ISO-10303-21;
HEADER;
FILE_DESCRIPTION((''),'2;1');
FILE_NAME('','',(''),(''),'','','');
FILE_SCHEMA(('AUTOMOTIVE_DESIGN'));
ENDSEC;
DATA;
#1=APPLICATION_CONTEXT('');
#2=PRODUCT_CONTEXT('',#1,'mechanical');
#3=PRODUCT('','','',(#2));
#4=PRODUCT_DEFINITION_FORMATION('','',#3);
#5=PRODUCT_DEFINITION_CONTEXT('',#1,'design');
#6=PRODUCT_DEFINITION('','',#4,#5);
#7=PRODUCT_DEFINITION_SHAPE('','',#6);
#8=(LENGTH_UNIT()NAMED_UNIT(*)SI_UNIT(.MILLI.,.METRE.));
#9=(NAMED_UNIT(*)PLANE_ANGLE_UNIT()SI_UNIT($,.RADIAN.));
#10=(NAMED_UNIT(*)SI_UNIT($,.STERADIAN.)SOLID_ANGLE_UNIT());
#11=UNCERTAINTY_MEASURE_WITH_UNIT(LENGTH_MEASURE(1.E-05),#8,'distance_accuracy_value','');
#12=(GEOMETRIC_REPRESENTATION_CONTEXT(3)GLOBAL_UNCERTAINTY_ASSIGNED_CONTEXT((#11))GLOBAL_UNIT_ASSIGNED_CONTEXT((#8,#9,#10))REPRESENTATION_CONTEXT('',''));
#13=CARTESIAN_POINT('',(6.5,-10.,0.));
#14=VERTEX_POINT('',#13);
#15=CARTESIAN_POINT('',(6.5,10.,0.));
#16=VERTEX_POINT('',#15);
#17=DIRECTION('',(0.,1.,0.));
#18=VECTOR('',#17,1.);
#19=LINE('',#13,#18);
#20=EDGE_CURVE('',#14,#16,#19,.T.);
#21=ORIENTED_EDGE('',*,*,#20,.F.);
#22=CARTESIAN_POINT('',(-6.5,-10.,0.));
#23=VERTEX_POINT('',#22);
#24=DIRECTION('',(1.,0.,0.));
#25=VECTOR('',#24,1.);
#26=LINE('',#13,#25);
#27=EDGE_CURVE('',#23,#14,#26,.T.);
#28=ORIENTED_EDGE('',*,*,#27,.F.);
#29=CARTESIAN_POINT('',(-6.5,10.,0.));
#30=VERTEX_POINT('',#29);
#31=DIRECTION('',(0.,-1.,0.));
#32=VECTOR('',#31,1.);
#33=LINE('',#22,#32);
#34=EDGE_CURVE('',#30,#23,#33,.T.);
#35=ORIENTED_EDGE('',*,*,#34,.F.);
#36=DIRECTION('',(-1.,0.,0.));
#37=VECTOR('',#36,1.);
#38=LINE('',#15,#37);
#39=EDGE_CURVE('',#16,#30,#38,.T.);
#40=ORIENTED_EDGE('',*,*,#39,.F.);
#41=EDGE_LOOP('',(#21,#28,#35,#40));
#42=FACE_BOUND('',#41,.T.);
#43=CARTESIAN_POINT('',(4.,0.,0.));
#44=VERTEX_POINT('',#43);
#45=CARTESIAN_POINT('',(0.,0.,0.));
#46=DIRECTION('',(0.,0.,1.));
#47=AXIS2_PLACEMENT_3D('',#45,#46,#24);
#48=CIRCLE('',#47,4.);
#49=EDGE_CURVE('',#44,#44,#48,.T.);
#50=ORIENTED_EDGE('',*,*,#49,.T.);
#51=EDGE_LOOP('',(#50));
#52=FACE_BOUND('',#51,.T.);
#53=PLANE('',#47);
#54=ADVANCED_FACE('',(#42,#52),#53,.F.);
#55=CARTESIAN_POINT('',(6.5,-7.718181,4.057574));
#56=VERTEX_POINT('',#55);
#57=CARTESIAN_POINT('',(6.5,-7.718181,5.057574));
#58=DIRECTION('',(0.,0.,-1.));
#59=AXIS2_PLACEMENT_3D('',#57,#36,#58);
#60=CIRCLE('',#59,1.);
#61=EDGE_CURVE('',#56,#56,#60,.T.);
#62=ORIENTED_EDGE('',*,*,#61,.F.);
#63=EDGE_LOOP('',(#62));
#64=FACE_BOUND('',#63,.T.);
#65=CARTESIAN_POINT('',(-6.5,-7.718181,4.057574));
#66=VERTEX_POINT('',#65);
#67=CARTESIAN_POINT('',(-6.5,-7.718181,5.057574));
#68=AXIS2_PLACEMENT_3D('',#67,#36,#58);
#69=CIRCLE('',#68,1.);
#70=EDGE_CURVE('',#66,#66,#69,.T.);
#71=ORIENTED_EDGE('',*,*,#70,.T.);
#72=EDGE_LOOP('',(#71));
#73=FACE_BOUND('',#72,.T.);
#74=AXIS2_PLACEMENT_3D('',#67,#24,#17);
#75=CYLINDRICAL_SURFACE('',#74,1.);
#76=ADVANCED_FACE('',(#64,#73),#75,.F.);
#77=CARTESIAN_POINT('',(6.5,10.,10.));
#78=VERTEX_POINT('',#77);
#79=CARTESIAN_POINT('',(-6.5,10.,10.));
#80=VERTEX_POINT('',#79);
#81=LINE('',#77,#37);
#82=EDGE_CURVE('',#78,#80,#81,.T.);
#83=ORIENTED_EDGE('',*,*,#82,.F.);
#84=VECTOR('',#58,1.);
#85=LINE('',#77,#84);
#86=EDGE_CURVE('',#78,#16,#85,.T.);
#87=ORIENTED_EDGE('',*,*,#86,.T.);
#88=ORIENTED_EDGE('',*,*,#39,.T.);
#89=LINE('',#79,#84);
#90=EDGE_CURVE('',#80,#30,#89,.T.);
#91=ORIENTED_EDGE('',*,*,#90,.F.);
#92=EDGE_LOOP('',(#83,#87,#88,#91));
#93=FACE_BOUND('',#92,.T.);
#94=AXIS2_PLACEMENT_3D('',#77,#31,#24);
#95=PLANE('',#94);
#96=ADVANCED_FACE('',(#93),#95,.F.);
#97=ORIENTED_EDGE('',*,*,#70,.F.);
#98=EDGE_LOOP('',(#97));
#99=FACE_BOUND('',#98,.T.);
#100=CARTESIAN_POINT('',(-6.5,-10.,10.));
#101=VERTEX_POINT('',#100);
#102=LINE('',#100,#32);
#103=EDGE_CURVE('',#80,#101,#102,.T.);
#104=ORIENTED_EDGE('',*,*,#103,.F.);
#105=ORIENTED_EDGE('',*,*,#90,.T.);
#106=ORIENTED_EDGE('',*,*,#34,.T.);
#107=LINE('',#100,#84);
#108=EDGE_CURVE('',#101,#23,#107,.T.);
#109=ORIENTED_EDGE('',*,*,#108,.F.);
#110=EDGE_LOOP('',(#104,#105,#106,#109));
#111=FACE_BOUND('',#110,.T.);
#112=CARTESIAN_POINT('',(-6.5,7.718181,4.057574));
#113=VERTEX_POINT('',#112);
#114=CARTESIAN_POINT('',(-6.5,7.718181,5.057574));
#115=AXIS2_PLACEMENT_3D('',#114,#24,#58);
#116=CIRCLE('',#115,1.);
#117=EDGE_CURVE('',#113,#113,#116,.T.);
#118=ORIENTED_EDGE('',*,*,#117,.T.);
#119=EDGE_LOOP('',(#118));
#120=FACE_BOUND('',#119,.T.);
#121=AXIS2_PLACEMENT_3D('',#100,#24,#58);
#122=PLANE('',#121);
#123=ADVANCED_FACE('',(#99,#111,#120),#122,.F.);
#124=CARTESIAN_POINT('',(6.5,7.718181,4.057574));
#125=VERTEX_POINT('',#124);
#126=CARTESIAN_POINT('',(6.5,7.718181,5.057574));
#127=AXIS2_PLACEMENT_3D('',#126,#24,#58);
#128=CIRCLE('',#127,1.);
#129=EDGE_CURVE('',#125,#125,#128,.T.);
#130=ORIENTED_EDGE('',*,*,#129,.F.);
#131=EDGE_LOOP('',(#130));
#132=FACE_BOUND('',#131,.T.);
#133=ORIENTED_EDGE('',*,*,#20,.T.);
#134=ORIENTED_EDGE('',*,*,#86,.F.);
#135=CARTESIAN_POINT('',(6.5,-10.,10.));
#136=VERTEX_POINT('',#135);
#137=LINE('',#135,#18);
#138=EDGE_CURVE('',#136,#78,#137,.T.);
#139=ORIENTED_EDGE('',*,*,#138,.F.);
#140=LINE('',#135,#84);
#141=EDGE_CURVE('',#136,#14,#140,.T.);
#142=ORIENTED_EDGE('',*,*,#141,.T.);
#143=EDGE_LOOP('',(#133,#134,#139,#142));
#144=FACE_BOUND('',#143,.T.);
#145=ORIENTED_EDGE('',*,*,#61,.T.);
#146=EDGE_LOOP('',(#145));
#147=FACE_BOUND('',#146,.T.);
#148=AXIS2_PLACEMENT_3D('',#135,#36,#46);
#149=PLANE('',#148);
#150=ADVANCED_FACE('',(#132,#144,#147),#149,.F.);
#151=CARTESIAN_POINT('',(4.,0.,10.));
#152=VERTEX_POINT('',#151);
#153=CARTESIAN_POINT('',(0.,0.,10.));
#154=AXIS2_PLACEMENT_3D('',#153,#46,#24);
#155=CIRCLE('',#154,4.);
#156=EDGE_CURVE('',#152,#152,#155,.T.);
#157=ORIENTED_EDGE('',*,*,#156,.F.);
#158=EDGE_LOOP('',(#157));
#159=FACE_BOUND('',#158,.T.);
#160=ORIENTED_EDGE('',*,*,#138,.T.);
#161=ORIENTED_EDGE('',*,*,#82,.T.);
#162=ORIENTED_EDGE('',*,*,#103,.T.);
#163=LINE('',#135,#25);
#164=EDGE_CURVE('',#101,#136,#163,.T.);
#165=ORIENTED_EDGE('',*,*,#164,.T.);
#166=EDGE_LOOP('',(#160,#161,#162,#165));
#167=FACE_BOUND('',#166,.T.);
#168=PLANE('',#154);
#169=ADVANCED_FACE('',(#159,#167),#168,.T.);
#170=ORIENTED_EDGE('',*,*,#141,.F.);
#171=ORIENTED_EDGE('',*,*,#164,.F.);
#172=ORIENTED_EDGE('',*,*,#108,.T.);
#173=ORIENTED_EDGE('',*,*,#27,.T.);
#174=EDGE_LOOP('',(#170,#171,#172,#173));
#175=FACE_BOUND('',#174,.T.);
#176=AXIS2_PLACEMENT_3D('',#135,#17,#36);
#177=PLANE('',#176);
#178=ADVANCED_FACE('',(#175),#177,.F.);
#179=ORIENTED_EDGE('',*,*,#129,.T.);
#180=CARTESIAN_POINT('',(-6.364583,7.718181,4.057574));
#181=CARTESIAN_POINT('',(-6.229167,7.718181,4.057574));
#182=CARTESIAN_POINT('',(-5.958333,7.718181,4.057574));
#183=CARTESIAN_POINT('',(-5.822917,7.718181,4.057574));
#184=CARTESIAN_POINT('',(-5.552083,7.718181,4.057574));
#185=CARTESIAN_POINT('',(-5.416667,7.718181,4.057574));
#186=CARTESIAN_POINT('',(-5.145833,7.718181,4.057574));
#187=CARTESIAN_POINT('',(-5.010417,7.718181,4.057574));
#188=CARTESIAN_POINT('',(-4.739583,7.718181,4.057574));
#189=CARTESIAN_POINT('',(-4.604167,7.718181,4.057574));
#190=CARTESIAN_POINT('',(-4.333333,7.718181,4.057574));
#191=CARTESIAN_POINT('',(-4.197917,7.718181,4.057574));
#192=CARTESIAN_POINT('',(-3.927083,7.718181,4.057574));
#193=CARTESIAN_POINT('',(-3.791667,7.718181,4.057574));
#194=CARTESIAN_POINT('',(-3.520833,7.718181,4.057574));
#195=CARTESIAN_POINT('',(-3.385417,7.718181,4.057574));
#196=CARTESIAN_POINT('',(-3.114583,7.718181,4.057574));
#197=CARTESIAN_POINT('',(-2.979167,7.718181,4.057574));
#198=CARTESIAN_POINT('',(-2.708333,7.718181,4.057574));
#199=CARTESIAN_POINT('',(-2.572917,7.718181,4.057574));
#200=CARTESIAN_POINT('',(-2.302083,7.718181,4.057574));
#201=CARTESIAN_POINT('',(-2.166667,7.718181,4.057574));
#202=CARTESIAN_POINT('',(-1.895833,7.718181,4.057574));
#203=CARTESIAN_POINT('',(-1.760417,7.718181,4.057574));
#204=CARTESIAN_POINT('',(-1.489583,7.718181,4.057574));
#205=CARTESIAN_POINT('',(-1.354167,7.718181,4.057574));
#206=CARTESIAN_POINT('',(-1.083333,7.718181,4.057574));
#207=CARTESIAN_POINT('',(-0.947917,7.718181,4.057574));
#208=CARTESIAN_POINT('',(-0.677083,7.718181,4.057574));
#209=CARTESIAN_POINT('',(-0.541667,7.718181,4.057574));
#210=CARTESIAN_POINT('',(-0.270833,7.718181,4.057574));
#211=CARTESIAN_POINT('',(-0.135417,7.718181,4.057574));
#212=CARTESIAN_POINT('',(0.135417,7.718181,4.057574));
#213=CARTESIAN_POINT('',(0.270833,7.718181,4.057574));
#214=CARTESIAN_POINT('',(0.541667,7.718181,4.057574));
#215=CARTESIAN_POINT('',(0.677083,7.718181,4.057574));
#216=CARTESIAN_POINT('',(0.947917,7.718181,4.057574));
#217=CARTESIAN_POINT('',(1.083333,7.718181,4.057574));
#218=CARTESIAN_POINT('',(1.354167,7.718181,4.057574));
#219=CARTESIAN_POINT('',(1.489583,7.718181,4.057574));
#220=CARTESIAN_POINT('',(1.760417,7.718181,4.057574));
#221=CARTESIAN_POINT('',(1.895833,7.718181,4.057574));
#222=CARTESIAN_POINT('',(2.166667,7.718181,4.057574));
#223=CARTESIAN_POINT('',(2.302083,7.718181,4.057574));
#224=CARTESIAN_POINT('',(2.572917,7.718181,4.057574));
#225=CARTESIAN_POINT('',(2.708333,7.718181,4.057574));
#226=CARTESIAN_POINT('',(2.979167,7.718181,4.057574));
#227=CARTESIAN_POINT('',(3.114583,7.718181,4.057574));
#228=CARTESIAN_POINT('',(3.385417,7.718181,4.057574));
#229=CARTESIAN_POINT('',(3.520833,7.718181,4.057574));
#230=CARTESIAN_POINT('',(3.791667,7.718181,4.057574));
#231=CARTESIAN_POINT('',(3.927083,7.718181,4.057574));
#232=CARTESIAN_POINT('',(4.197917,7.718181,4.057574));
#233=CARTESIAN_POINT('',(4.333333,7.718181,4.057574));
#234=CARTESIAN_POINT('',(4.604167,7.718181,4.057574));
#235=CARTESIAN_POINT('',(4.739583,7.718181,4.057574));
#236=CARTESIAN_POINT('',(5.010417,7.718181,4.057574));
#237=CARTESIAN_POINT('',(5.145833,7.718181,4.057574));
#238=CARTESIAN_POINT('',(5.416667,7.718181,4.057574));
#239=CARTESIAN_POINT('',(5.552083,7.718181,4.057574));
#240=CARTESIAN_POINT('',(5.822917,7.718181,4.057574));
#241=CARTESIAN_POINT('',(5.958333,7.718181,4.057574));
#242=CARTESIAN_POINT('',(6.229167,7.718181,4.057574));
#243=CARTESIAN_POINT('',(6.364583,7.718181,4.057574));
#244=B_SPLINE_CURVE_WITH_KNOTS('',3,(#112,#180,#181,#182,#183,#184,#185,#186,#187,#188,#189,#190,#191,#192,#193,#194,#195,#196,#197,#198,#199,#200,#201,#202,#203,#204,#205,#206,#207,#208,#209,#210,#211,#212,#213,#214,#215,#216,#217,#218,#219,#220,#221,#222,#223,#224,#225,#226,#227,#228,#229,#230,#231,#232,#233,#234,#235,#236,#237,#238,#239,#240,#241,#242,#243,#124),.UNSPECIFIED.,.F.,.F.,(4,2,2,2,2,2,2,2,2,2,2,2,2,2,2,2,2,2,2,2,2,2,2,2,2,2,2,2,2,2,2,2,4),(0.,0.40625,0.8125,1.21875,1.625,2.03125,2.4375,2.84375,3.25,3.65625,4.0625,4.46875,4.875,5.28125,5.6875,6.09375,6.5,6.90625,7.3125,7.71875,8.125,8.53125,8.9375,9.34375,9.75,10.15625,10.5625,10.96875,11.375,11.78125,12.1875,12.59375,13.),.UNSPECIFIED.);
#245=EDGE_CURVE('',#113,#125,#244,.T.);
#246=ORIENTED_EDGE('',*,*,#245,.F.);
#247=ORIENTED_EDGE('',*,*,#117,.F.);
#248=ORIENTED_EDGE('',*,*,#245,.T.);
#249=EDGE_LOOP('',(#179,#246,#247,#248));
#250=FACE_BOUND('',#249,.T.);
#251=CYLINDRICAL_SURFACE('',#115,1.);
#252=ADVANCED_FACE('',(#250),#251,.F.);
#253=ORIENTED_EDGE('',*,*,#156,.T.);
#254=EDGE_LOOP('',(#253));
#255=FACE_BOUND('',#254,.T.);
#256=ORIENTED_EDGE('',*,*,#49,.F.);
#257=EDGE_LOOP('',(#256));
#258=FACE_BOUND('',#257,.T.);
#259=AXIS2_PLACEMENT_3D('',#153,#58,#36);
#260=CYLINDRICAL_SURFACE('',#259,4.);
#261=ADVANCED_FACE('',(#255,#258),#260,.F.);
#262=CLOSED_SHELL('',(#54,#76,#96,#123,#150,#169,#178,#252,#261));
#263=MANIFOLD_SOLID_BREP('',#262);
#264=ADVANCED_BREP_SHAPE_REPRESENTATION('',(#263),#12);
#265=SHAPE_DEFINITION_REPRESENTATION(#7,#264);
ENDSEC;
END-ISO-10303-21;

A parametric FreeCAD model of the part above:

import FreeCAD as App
import Part
import Sketcher
from FreeCAD import Vector

doc = App.newDocument("Part")
body = doc.addObject("PartDesign::Body", "Body")

# Sketch on XY plane
sketch1 = body.newObject("Sketcher::SketchObject", "Sketch")
sketch1.AttachmentSupport = (doc.getObject("XY_Plane"), [""])
sketch1.MapMode = "FlatFace"
sketch1.addGeometry([
    Part.LineSegment(Vector(-6.5, 10, 0), Vector(-6.5, -10, 0)),  # 0
    Part.LineSegment(Vector(-6.5, -10, 0), Vector(6.5, -10, 0)),  # 1
    Part.LineSegment(Vector(6.5, -10, 0), Vector(6.5, 10, 0)),  # 2
    Part.LineSegment(Vector(6.5, 10, 0), Vector(-6.5, 10, 0)),  # 3
    Part.Circle(Vector(0, 0, 0), Vector(0, 0, 1), 4),  # 4
], False)
sketch1.addConstraint([
    Sketcher.Constraint("Coincident", 0, 2, 1, 1),
    Sketcher.Constraint("Coincident", 1, 2, 2, 1),
    Sketcher.Constraint("Coincident", 2, 2, 3, 1),
    Sketcher.Constraint("Coincident", 3, 2, 0, 1),
    Sketcher.Constraint("Vertical", 0),
    Sketcher.Constraint("Horizontal", 1),
    Sketcher.Constraint("Vertical", 2),
    Sketcher.Constraint("Horizontal", 3),
    Sketcher.Constraint("Coincident", 4, 3, -1, 1),
    Sketcher.Constraint("Symmetric", 0, 2, 2, 2, -1, 1),
    Sketcher.Constraint("Diameter", 4, 8.0),
    Sketcher.Constraint("DistanceX", 1, 1, 1, 2, 13.0),
    Sketcher.Constraint("DistanceY", 0, 2, 0, 1, 20.0),
])
pad1 = body.newObject("PartDesign::Pad", "Pad")
pad1.Profile = sketch1
pad1.Length = 10

# Sketch on YZ plane
sketch2 = body.newObject("Sketcher::SketchObject", "Sketch001")
sketch2.AttachmentSupport = (doc.getObject("YZ_Plane"), [""])
sketch2.MapMode = "FlatFace"
sketch2.AttachmentOffset = App.Placement(Vector(0, 0, 6.5), App.Rotation())
sketch2.addGeometry(Part.Circle(Vector(7.718181, 5.057574, 0), Vector(0, 0, 1), 1), False)
sketch2.addConstraint([
    Sketcher.Constraint("Diameter", 0, 2.0),
    Sketcher.Constraint("DistanceX", -1, 1, 0, 3, 7.718181),
    Sketcher.Constraint("DistanceY", -1, 1, 0, 3, 5.057574),
])
pocket1 = body.newObject("PartDesign::Pocket", "Pocket")
pocket1.Profile = sketch2
pocket1.Type = "ThroughAll"
doc.recompute()

mirrored = body.newObject("PartDesign::Mirrored", "Mirrored")
mirrored.Originals = [pocket1]
mirrored.MirrorPlane = (doc.getObject("XZ_Plane"), [""])
body.Tip = mirrored

doc.recompute()
